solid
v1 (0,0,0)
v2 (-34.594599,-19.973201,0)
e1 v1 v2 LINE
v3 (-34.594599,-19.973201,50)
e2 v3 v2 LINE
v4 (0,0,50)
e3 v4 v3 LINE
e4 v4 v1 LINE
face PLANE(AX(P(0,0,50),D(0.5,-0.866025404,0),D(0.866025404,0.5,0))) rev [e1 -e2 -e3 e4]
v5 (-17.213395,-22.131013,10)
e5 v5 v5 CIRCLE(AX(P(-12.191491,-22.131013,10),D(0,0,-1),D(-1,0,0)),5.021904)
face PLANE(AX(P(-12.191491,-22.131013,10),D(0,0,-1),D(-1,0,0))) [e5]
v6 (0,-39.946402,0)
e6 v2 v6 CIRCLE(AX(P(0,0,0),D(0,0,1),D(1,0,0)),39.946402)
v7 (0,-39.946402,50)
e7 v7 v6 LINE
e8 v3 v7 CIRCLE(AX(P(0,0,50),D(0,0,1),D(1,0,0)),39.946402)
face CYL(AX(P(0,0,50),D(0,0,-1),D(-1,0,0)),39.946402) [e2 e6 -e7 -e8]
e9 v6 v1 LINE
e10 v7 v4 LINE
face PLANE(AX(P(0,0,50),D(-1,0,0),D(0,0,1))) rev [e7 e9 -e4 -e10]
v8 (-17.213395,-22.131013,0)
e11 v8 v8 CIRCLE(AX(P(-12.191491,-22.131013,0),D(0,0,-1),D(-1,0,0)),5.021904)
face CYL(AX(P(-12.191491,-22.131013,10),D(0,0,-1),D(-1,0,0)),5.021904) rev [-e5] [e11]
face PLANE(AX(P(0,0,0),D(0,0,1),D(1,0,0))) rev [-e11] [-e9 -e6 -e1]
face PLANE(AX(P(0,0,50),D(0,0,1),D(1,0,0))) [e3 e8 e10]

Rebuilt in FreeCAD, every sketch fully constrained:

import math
import FreeCAD as App
import Part
import Sketcher
from FreeCAD import Vector
Q = App.Units.Quantity

doc = App.newDocument("Part")
body = doc.addObject("PartDesign::Body", "Body")

# Sketch on XY plane
sketch1 = body.newObject("Sketcher::SketchObject", "Sketch")
sketch1.AttachmentSupport = (doc.getObject("XY_Plane"), [""])
sketch1.MapMode = "FlatFace"
sketch1.addGeometry([
    Part.LineSegment(Vector(0, -40, 0), Vector(0, 0, 0)),
    Part.LineSegment(Vector(0, 0, 0), Vector(-35, -20, 0)),
    Part.ArcOfCircle(Part.Circle(Vector(0, 0, 0), Vector(0, 0, 1), 40), math.radians(-150), math.radians(-90)),
], False)
sketch1.addConstraint([
    Sketcher.Constraint("Coincident", 0, 2, 1, 1),
    Sketcher.Constraint("Coincident", 1, 2, 2, 1),
    Sketcher.Constraint("Coincident", 2, 2, 0, 1),
    Sketcher.Constraint("Vertical", 0),
    Sketcher.Constraint("Coincident", 2, 3, -1, 1),
    Sketcher.Constraint("Coincident", 0, 2, -1, 1),
    Sketcher.Constraint("Angle", 1, Q("-150 deg")),
    Sketcher.Constraint("Radius", 2, Q("39.946402 mm")),
])
pad1 = body.newObject("PartDesign::Pad", "Pad")
pad1.Profile = sketch1
pad1.Length = 50

# Sketch on XY plane
sketch2 = body.newObject("Sketcher::SketchObject", "Sketch001")
sketch2.AttachmentSupport = (doc.getObject("XY_Plane"), [""])
sketch2.MapMode = "FlatFace"
sketch2.addGeometry(Part.Circle(Vector(-12, -22, 0), Vector(0, 0, 1), 5), False)
sketch2.addConstraint([
    Sketcher.Constraint("Diameter", 0, Q("10.043808 mm")),
    Sketcher.Constraint("DistanceX", 0, 3, -1, 1, Q("12.191491 mm")),
    Sketcher.Constraint("DistanceY", 0, 3, -1, 1, Q("22.131013 mm")),
])
pocket1 = body.newObject("PartDesign::Pocket", "Pocket")
pocket1.Profile = sketch2
pocket1.Length = 10
pocket1.Reversed = True

doc.recompute()
